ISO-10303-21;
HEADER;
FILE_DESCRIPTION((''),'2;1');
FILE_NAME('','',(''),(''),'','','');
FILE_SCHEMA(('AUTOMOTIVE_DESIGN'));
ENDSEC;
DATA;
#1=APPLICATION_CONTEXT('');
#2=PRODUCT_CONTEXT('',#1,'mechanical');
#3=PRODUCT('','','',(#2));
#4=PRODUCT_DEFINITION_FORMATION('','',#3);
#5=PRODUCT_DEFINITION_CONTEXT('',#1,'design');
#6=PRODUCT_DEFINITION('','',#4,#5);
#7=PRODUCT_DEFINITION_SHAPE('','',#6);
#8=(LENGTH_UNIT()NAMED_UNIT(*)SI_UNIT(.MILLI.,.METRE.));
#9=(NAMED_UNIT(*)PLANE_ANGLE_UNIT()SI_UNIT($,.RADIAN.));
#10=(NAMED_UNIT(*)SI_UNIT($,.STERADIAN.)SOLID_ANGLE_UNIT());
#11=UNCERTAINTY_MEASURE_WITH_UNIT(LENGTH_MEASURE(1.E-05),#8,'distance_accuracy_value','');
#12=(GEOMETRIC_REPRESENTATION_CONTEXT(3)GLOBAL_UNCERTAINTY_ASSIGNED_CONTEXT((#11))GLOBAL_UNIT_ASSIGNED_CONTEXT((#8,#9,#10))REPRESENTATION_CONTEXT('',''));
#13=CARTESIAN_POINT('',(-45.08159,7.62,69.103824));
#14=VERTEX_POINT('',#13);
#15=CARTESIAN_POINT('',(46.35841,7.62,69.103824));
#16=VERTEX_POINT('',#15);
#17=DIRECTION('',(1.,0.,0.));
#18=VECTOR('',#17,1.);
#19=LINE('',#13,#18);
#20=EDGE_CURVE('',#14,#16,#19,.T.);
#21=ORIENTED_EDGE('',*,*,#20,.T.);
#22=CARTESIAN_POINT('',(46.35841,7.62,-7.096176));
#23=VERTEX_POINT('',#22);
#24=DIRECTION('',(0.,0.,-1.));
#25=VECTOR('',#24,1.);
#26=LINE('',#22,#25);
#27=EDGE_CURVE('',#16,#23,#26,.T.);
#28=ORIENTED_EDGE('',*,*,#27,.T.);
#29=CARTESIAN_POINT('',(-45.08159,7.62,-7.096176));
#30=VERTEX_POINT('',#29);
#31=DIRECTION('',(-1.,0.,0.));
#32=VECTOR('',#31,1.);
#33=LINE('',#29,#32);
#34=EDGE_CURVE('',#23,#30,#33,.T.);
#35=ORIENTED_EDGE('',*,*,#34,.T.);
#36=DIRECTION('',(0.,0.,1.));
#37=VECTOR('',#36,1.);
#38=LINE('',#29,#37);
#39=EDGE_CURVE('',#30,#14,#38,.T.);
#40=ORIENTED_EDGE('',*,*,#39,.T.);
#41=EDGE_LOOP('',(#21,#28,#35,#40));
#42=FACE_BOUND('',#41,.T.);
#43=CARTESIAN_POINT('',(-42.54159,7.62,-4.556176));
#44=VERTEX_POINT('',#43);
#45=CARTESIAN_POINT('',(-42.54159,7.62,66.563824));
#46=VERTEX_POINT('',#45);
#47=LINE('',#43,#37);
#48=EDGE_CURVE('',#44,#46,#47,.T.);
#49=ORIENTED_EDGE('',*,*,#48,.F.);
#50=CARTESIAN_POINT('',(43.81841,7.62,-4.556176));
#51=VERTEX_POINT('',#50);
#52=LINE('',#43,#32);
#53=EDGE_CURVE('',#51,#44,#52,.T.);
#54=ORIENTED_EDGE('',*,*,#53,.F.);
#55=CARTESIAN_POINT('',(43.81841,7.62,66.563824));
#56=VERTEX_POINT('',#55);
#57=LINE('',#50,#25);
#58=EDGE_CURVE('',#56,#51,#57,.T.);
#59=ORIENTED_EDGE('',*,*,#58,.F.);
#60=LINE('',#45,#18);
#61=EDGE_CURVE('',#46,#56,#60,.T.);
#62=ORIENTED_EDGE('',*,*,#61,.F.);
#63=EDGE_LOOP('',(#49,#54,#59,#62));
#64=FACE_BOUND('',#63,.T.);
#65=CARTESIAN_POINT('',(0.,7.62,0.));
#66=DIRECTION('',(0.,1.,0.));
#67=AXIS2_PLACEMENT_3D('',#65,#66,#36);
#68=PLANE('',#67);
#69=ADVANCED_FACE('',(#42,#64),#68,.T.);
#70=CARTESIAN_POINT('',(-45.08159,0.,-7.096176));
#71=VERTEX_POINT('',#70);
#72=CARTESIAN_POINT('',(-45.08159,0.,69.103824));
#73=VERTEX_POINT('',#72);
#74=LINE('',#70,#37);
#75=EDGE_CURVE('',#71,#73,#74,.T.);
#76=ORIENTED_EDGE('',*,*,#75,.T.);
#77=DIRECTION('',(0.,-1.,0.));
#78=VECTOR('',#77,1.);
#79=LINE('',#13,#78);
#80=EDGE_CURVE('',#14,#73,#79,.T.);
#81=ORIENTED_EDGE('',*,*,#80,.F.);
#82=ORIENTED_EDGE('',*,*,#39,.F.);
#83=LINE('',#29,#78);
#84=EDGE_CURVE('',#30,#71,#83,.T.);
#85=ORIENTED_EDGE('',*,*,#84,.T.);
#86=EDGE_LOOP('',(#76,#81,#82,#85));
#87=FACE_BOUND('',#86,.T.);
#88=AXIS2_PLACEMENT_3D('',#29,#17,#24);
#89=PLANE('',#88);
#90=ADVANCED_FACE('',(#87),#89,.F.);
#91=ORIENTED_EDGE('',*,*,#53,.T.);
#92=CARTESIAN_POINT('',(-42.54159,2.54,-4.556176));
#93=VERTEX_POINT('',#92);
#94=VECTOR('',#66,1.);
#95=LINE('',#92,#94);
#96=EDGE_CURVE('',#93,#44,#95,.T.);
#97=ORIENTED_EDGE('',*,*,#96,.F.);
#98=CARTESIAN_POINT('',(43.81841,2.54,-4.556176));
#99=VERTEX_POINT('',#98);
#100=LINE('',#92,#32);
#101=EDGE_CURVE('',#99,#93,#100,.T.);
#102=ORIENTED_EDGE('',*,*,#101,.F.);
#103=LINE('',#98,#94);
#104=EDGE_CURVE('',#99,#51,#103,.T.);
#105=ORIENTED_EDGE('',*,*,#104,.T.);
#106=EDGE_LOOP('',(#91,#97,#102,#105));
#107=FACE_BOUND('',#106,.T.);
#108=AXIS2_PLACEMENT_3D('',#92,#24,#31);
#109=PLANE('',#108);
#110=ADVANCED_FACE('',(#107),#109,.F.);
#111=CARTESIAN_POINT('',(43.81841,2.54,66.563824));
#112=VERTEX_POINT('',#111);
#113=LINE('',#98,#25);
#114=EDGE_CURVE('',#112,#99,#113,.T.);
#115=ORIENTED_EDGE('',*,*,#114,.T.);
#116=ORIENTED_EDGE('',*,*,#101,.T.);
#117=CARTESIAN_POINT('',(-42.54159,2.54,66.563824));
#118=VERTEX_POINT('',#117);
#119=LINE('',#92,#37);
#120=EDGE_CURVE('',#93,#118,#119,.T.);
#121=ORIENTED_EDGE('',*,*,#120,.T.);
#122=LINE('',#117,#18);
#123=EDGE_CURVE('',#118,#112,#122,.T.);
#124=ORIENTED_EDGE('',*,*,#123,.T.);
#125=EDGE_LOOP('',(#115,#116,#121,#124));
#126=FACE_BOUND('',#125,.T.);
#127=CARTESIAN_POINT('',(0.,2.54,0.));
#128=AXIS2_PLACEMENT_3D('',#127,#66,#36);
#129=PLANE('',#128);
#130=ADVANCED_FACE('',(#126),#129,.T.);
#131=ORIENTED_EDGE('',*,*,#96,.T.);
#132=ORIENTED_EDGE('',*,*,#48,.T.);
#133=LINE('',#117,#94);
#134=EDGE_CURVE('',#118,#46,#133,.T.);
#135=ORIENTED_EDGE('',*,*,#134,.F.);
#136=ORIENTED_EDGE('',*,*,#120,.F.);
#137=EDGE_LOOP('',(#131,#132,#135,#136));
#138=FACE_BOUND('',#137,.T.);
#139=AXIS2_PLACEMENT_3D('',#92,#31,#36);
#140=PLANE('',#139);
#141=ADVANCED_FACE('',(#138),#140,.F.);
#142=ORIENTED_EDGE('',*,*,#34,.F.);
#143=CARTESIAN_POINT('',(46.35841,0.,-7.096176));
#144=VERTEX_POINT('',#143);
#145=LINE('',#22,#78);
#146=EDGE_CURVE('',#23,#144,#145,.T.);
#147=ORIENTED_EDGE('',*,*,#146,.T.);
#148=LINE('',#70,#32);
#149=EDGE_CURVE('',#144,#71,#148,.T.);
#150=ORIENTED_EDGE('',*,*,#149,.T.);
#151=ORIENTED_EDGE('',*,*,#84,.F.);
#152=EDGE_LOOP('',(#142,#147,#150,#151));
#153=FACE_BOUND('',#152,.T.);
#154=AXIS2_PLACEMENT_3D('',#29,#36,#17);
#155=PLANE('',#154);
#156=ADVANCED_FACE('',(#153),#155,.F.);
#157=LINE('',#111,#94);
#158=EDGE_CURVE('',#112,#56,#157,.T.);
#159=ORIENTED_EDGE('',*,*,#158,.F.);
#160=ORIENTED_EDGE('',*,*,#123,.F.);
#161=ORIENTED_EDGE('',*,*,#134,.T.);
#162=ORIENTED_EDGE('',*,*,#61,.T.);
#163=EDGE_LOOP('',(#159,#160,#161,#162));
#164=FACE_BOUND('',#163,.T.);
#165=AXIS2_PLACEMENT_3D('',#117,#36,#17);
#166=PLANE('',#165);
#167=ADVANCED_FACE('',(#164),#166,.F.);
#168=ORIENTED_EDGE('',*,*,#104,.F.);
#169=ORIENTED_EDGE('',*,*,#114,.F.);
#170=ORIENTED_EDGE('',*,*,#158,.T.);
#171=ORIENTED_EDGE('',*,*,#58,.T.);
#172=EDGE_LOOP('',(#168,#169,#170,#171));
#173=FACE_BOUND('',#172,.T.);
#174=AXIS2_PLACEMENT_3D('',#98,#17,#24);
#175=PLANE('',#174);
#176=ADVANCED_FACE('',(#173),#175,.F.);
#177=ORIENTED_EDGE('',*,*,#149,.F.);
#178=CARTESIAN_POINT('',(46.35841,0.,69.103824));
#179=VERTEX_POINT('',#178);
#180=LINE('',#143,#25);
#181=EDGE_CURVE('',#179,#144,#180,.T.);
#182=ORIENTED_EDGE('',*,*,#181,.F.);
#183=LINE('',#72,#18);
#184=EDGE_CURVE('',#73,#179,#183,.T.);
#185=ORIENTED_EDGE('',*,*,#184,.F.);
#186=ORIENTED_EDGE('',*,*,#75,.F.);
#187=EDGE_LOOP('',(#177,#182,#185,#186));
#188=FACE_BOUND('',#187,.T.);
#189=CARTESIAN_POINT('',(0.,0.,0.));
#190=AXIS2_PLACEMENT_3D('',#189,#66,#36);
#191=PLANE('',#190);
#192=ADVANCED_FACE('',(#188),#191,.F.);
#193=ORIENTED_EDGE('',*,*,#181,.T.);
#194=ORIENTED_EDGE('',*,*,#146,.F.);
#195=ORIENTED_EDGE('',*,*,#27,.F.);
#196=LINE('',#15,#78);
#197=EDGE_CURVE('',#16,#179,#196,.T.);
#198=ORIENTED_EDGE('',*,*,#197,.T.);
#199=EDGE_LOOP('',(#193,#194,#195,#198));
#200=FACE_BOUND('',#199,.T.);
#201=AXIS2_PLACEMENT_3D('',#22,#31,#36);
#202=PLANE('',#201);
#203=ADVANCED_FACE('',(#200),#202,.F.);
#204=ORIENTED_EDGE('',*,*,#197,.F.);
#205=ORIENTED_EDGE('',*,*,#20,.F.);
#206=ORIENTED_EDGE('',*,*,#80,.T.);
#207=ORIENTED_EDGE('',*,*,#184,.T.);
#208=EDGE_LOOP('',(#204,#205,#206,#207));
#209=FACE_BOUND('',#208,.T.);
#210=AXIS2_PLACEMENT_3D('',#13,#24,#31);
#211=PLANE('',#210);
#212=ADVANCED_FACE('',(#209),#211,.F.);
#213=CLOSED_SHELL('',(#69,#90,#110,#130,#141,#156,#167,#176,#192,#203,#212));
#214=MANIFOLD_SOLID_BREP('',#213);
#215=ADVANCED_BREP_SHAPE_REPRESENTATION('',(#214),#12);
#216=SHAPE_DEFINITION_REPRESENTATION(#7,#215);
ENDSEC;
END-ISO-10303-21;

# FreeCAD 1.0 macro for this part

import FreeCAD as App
import Part
import Sketcher
from FreeCAD import Vector
Q = App.Units.Quantity


def add_polygon(sketch, points):
    """Adds a closed chain of lines whose ends are joined by coincident constraints."""
    first, n = sketch.GeometryCount, len(points)
    for a, b in zip(points, points[1:] + points[:1]):
        sketch.addGeometry(Part.LineSegment(App.Vector(*a, 0), App.Vector(*b, 0)), False)
    for i in range(n):
        sketch.addConstraint(Sketcher.Constraint("Coincident", first + i, 2, first + (i + 1) % n, 1))

doc = App.newDocument("Part")
body = doc.addObject("PartDesign::Body", "Body")

# Sketch on XZ plane
sketch1 = body.newObject("Sketcher::SketchObject", "Sketch")
sketch1.AttachmentSupport = (doc.getObject("XZ_Plane"), [""])
sketch1.MapMode = "FlatFace"
add_polygon(sketch1, [(-45.08159, -7.096176), (-45.08159, 69.103824), (46.35841, 69.103824), (46.35841, -7.096176)])  # lines 0-3
sketch1.addConstraint([
    Sketcher.Constraint("Vertical", 0),
    Sketcher.Constraint("Horizontal", 1),
    Sketcher.Constraint("Vertical", 2),
    Sketcher.Constraint("Horizontal", 3),
    Sketcher.Constraint("DistanceY", 0, 1, 0, 2, Q("3 in")),
    Sketcher.Constraint("DistanceX", 1, 1, 1, 2, Q("3.6 in")),
    Sketcher.Constraint("DistanceX", 0, 2, -1, 1, Q("45.08159 mm")),
    Sketcher.Constraint("DistanceY", -1, 1, 0, 2, Q("69.103824 mm")),
])
pad1 = body.newObject("PartDesign::Pad", "Pad")
pad1.Profile = sketch1
pad1.Length = Q("0.3 in")
pad1.Reversed = True

# Sketch on XZ plane
sketch2 = body.newObject("Sketcher::SketchObject", "Sketch001")
sketch2.AttachmentSupport = (doc.getObject("XZ_Plane"), [""])
sketch2.MapMode = "FlatFace"
sketch2.AttachmentOffset = App.Placement(Vector(0, 0, -0.3 * 25.4), App.Rotation())
add_polygon(sketch2, [(-42.54159, -4.556176), (-42.54159, 66.563824), (43.81841, 66.563824), (43.81841, -4.556176)])  # lines 0-3
sketch2.addConstraint([
    Sketcher.Constraint("Vertical", 0),
    Sketcher.Constraint("Horizontal", 1),
    Sketcher.Constraint("Vertical", 2),
    Sketcher.Constraint("Horizontal", 3),
    Sketcher.Constraint("DistanceX", 1, 1, 1, 2, Q("3.4 in")),
    Sketcher.Constraint("DistanceY", 0, 1, 0, 2, Q("2.8 in")),
    Sketcher.Constraint("DistanceX", 0, 2, -1, 1, Q("42.54159 mm")),
    Sketcher.Constraint("DistanceY", -1, 1, 0, 2, Q("66.563824 mm")),
])
pocket1 = body.newObject("PartDesign::Pocket", "Pocket")
pocket1.Profile = sketch2
pocket1.Length = Q("0.2 in")
pocket1.Reversed = True

doc.recompute()
